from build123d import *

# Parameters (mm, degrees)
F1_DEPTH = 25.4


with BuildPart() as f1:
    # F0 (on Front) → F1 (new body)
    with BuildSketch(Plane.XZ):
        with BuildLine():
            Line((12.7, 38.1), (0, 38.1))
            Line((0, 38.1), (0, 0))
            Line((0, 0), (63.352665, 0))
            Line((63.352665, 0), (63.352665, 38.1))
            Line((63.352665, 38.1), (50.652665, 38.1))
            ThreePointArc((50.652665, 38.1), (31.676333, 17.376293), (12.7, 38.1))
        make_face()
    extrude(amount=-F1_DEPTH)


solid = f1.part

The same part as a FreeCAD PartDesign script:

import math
import FreeCAD as App
import Part
import Sketcher
Q = App.Units.Quantity

doc = App.newDocument("Part")
body = doc.addObject("PartDesign::Body", "Body")

sketch1 = body.newObject("Sketcher::SketchObject", "Sketch")
sketch1.AttachmentSupport = (doc.getObject("XZ_Plane"), [""])
sketch1.MapMode = "FlatFace"
sketch1.addGeometry([
    Part.LineSegment(App.Vector(13, 38, 0), App.Vector(0, 38, 0)),
    Part.LineSegment(App.Vector(0, 38, 0), App.Vector(0, 0, 0)),
    Part.LineSegment(App.Vector(0, 0, 0), App.Vector(63, 0, 0)),
    Part.LineSegment(App.Vector(63, 0, 0), App.Vector(63, 38, 0)),
    Part.LineSegment(App.Vector(63, 38, 0), App.Vector(51, 38, 0)),
    Part.ArcOfCircle(Part.Circle(App.Vector(32, 36, 0), App.Vector(0, 0, 1), 19), math.radians(175), math.radians(365)),
], False)
sketch1.addConstraint([
    Sketcher.Constraint("Coincident", 0, 2, 1, 1),
    Sketcher.Constraint("Coincident", 1, 2, 2, 1),
    Sketcher.Constraint("Coincident", 2, 2, 3, 1),
    Sketcher.Constraint("Coincident", 3, 2, 4, 1),
    Sketcher.Constraint("Coincident", 4, 2, 5, 2),
    Sketcher.Constraint("Coincident", 5, 1, 0, 1),
    Sketcher.Constraint("Horizontal", 0),
    Sketcher.Constraint("Vertical", 1),
    Sketcher.Constraint("Horizontal", 2),
    Sketcher.Constraint("Vertical", 3),
    Sketcher.Constraint("Horizontal", 4),
    Sketcher.Constraint("Coincident", 1, 2, -1, 1),
    Sketcher.Constraint("Horizontal", 0, 2, 3, 2),
    Sketcher.Constraint("Equal", 0, 4),
    Sketcher.Constraint("Radius", 5, Q("0.75 in")),
    Sketcher.Constraint("DistanceX", 0, 2, 0, 1, Q("0.5 in")),
    Sketcher.Constraint("DistanceY", 1, 2, 1, 1, Q("1.5 in")),
    Sketcher.Constraint("DistanceX", 2, 1, 2, 2, Q("63.352665 mm")),
])
pad1 = body.newObject("PartDesign::Pad", "Pad")
pad1.Profile = sketch1
pad1.Length = Q("1 in")
pad1.Reversed = True

doc.recompute()
